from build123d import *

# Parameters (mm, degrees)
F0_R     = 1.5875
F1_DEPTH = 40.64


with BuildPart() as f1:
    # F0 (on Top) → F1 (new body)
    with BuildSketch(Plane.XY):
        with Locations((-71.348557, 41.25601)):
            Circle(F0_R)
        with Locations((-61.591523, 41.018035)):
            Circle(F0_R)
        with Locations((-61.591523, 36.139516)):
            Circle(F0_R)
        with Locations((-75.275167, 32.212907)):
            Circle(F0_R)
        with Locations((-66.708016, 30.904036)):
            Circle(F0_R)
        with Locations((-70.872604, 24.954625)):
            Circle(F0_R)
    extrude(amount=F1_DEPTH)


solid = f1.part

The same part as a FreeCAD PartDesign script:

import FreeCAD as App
import Part
import Sketcher
Q = App.Units.Quantity

doc = App.newDocument("Part")
params = doc.addObject("Spreadsheet::Sheet", "Params")
for row, (alias, value) in enumerate([
    ("sketch1_diameter", "0.125 in"),
    ("pad1_length", "1.6 in"),
], start=1):
    params.set(f"A{row}", alias)
    params.set(f"B{row}", "=" + value)
    params.setAlias(f"B{row}", alias)

body = doc.addObject("PartDesign::Body", "Body")
body.AllowCompound = True

# Sketch on XY plane
sketch1 = doc.addObject("Sketcher::SketchObject", "Sketch")
body.addObject(sketch1)
sketch1.AttachmentSupport = (doc.XY_Plane, [""])
sketch1.MapMode = "FlatFace"
sketch1.addGeometry([
    Part.Circle(App.Vector(-71.348557, 41.25601, 0), App.Vector(0, 0, 1), 1.5875),  # 0
    Part.Circle(App.Vector(-61.591523, 41.018035, 0), App.Vector(0, 0, 1), 1.5875),  # 1
    Part.Circle(App.Vector(-61.591523, 36.139516, 0), App.Vector(0, 0, 1), 1.5875),  # 2
    Part.Circle(App.Vector(-75.275167, 32.212907, 0), App.Vector(0, 0, 1), 1.5875),  # 3
    Part.Circle(App.Vector(-66.708016, 30.904036, 0), App.Vector(0, 0, 1), 1.5875),  # 4
    Part.Circle(App.Vector(-70.872604, 24.954625, 0), App.Vector(0, 0, 1), 1.5875),  # 5
], False)
sketch1.addConstraint([
    Sketcher.Constraint("Equal", 0, 1),
    Sketcher.Constraint("Equal", 1, 2),
    Sketcher.Constraint("Equal", 2, 3),
    Sketcher.Constraint("Equal", 3, 4),
    Sketcher.Constraint("Equal", 4, 5),
    Sketcher.Constraint("Vertical", 1, 3, 2, 3),
    Sketcher.Constraint("Diameter", 0, Q("0.125 in")),
    Sketcher.Constraint("DistanceX", 4, 3, -1, 1, Q("2.6262998 in")),
    Sketcher.Constraint("DistanceY", 4, 3, 1, 3, Q("10.113999 mm")),
    Sketcher.Constraint("DistanceY", -1, 1, 0, 3, Q("41.25601 mm")),
    Sketcher.Constraint("DistanceY", 2, 3, 1, 3, Q("4.878519 mm")),
    Sketcher.Constraint("DistanceX", 3, 3, 0, 3, Q("3.92661 mm")),
    Sketcher.Constraint("DistanceY", 3, 3, 2, 3, Q("3.926609 mm")),
    Sketcher.Constraint("DistanceX", 3, 3, 4, 3, Q("8.567151 mm")),
    Sketcher.Constraint("DistanceY", 5, 3, 4, 3, Q("5.949411 mm")),
    Sketcher.Constraint("DistanceX", 5, 3, 2, 3, Q("9.281081 mm")),
    Sketcher.Constraint("DistanceX", 1, 3, -1, 1, Q("61.591523 mm")),
    Sketcher.Constraint("DistanceY", -1, 1, 1, 3, Q("41.018035 mm")),
])
sketch1.setExpression("Constraints[6]", "Params.sketch1_diameter")
pad1 = doc.addObject("PartDesign::Pad", "Pad")
body.addObject(pad1)
pad1.Profile = sketch1
pad1.setExpression("Length", "Params.pad1_length")

doc.recompute()
